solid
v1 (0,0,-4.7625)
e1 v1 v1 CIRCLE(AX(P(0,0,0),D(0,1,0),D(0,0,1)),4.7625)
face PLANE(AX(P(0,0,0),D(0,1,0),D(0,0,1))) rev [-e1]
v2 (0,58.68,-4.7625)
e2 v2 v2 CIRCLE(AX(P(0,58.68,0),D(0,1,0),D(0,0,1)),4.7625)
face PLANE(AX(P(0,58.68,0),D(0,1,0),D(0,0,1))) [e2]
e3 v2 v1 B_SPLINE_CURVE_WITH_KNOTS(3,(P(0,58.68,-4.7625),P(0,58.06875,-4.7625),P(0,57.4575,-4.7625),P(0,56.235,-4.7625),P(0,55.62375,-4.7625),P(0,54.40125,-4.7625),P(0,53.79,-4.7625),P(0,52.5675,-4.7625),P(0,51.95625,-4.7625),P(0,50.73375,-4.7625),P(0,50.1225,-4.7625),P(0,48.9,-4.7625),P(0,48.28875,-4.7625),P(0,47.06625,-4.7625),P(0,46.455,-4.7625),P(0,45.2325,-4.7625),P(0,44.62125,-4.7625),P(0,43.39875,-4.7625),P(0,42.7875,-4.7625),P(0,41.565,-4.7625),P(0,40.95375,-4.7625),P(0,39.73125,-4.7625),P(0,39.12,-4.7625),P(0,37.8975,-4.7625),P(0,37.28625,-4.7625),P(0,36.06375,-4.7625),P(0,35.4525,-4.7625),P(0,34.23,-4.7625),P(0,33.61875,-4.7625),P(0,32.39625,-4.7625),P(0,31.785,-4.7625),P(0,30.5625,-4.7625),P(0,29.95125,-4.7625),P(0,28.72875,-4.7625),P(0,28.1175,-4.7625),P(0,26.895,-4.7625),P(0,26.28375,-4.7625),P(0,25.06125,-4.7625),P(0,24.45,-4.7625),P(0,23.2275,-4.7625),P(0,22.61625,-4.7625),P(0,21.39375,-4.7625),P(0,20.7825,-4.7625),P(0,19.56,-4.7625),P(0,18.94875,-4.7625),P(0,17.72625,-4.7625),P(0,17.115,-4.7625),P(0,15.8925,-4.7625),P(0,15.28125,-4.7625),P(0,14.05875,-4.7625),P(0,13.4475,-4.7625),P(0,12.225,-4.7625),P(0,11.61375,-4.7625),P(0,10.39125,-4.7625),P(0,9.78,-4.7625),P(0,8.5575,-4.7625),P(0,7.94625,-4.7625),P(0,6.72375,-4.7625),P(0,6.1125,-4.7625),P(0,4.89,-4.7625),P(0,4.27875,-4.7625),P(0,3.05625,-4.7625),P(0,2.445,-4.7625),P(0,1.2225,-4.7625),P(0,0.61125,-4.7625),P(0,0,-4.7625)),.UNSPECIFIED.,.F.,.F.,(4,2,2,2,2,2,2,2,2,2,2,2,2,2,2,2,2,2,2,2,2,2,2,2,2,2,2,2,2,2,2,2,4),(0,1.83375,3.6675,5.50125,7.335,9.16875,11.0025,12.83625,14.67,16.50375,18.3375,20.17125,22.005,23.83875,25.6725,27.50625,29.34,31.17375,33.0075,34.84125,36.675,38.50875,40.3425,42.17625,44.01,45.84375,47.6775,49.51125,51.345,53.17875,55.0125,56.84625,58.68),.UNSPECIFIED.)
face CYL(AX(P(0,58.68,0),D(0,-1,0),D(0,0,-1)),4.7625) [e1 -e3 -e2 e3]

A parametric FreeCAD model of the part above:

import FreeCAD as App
import Part
import Sketcher
Q = App.Units.Quantity

doc = App.newDocument("Part")
body = doc.addObject("PartDesign::Body", "Body")

# Sketch on XZ plane
sketch1 = doc.addObject("Sketcher::SketchObject", "Sketch")
body.addObject(sketch1)
sketch1.AttachmentSupport = (doc.XZ_Plane, [""])
sketch1.MapMode = "FlatFace"
sketch1.addGeometry(Part.Circle(App.Vector(0, 0, 0), App.Vector(0, 0, 1), 4.7625), False)
sketch1.addConstraint(Sketcher.Constraint("Coincident", 0, 3, -1, 1))
sketch1.addConstraint(Sketcher.Constraint("Diameter", 0, Q("0.375 in")))
pad1 = doc.addObject("PartDesign::Pad", "Pad")
body.addObject(pad1)
pad1.Profile = sketch1
pad1.Length = 58.68
pad1.Reversed = True

doc.recompute()
